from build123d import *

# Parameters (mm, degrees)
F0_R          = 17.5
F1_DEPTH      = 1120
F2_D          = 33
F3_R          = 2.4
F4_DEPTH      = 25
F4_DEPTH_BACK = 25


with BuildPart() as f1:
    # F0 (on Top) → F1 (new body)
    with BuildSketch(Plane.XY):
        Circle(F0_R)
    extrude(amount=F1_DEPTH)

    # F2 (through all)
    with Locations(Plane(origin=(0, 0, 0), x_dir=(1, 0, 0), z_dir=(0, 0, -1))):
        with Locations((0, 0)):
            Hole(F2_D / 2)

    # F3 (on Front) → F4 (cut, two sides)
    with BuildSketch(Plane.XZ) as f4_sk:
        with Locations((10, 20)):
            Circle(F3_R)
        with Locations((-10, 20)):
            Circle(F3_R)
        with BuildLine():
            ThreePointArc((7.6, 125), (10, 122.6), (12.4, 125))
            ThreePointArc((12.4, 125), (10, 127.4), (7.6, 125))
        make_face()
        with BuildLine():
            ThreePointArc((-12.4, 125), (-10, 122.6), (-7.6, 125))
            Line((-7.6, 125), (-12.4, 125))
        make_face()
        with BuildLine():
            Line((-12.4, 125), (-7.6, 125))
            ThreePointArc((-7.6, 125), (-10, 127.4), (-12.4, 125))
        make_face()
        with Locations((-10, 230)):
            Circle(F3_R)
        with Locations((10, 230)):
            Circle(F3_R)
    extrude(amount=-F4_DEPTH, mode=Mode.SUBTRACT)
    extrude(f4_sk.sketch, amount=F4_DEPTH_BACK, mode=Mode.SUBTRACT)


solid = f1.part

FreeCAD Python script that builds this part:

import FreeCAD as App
import Part
import Sketcher

V = App.Vector
Q = App.Units.Quantity

doc = App.newDocument("Part")
params = doc.addObject("Spreadsheet::Sheet", "Params")
for row, (alias, value) in enumerate([
    ("sketch1_diameter", "35 mm"),
    ("pad1_length", "1120 mm"),
    ("sketch2_diameter", "33 mm"),
    ("hole_diameter", "33 mm"),
    ("sketch3_diameter", "4.8 mm"),
], start=1):
    params.set(f"A{row}", alias)
    params.set(f"B{row}", "=" + value)
    params.setAlias(f"B{row}", alias)

body = doc.addObject("PartDesign::Body", "Body")

sketch1 = body.newObject("Sketcher::SketchObject", "Sketch")
sketch1.AttachmentSupport = (doc.getObject("XY_Plane"), [""])
sketch1.MapMode = "FlatFace"
sketch1.addGeometry(Part.Circle(V(0, 0, 0), V(0, 0, 1), 17.5), False)
sketch1.addConstraint([
    Sketcher.Constraint("Coincident", 0, 3, -1, 1),
    Sketcher.Constraint("Diameter", 0, Q("35 mm")),
])
sketch1.setExpression("Constraints[1]", "Params.sketch1_diameter")
pad1 = body.newObject("PartDesign::Pad", "Pad")
pad1.Profile = sketch1
pad1.setExpression("Length", "Params.pad1_length")

sketch2 = body.newObject("Sketcher::SketchObject", "Sketch001")
sketch2.AttachmentSupport = (doc.getObject("XY_Plane"), [""])
sketch2.MapMode = "FlatFace"
sketch2.addGeometry(Part.Circle(V(0, 0, 0), V(0, 0, 1), 16.5), False)
sketch2.addConstraint([
    Sketcher.Constraint("Coincident", 0, 3, -1, 1),
    Sketcher.Constraint("Diameter", 0, Q("33 mm")),
])
sketch2.setExpression("Constraints[1]", "Params.sketch2_diameter")
doc.recompute()
hole = body.newObject("PartDesign::Hole", "Hole")
hole.Profile = sketch2
hole.ThreadType = "None"
hole.setExpression("Diameter", "Params.hole_diameter")
hole.DepthType = "ThroughAll"
hole.Reversed = True

sketch3 = body.newObject("Sketcher::SketchObject", "Sketch002")
sketch3.AttachmentSupport = (doc.getObject("XZ_Plane"), [""])
sketch3.MapMode = "FlatFace"
sketch3.addGeometry([
    Part.Circle(V(10, 20, 0), V(0, 0, 1), 2.4),
    Part.Circle(V(-10, 20, 0), V(0, 0, 1), 2.4),
    Part.Circle(V(10, 125, 0), V(0, 0, 1), 2.4),
    Part.Circle(V(-10, 125, 0), V(0, 0, 1), 2.4),
    Part.Circle(V(-10, 230, 0), V(0, 0, 1), 2.4),
    Part.Circle(V(10, 230, 0), V(0, 0, 1), 2.4),
], False)
sketch3.addConstraint([
    Sketcher.Constraint("Equal", 0, 1),
    Sketcher.Constraint("Equal", 1, 2),
    Sketcher.Constraint("Equal", 2, 3),
    Sketcher.Constraint("Equal", 3, 4),
    Sketcher.Constraint("Equal", 4, 5),
    Sketcher.Constraint("Symmetric", 0, 3, 1, 3, -2),
    Sketcher.Constraint("Symmetric", 2, 3, 3, 3, -2),
    Sketcher.Constraint("Symmetric", 4, 3, 5, 3, -2),
    Sketcher.Constraint("Vertical", 0, 3, 2, 3),
    Sketcher.Constraint("Vertical", 3, 3, 4, 3),
    Sketcher.Constraint("Diameter", 0, Q("4.8 mm")),
    Sketcher.Constraint("DistanceX", -1, 1, 0, 3, Q("10 mm")),
    Sketcher.Constraint("DistanceY", -1, 1, 0, 3, Q("20 mm")),
    Sketcher.Constraint("DistanceY", -1, 1, 2, 3, Q("125 mm")),
    Sketcher.Constraint("DistanceY", -1, 1, 4, 3, Q("230 mm")),
])
sketch3.setExpression("Constraints[10]", "Params.sketch3_diameter")
pocket1 = body.newObject("PartDesign::Pocket", "Pocket")
pocket1.Profile = sketch3
pocket1.Type = "ThroughAll"
pocket1.Midplane = True

doc.recompute()
